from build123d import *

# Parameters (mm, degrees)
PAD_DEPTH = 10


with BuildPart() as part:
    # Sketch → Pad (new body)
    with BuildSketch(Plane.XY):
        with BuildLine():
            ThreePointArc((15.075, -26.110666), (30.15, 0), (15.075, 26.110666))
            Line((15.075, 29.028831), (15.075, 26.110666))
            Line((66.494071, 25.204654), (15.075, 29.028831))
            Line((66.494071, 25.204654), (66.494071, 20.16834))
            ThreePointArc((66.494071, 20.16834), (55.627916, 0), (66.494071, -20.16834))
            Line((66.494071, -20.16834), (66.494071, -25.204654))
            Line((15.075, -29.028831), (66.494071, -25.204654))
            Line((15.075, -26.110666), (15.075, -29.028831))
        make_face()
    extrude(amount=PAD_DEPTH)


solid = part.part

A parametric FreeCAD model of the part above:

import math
import FreeCAD as App
import Part
import Sketcher

V = App.Vector

doc = App.newDocument("Part")
params = doc.addObject("Spreadsheet::Sheet", "Params")
for row, (alias, value) in enumerate([
    ("sketch1_radius", "30.15 mm"),
    ("sketch1_radius2", "24.149999 mm"),
    ("pad1_length", "10 mm"),
], start=1):
    params.set(f"A{row}", alias)
    params.set(f"B{row}", "=" + value)
    params.setAlias(f"B{row}", alias)

body = doc.addObject("PartDesign::Body", "Body")

# Sketch on XY plane
sketch1 = body.newObject("Sketcher::SketchObject", "Sketch")
sketch1.AttachmentSupport = (doc.getObject("XY_Plane"), [""])
sketch1.MapMode = "FlatFace"
sketch1.addGeometry([
    Part.ArcOfCircle(Part.Circle(V(0, 0, 0), V(0, 0, 1), 30.2), math.radians(-60), math.radians(60)),  # 0
    Part.LineSegment(V(15.1, -26.1, 0), V(15.1, -29, 0)),  # 1
    Part.LineSegment(V(15.1, -29, 0), V(66.5, -25.2, 0)),  # 2
    Part.LineSegment(V(66.5, -25.2, 0), V(66.5, -20.2, 0)),  # 3
    Part.ArcOfCircle(Part.Circle(V(79.8, 0, 0), V(0, 0, 1), 24.1), math.radians(123), math.radians(237)),  # 4
    Part.LineSegment(V(66.5, 20.2, 0), V(66.5, 25.2, 0)),  # 5
    Part.LineSegment(V(66.5, 25.2, 0), V(15.1, 29, 0)),  # 6
    Part.LineSegment(V(15.1, 29, 0), V(15.1, 26.1, 0)),  # 7
], False)
sketch1.addConstraint([
    Sketcher.Constraint("Coincident", 0, 1, 1, 1),
    Sketcher.Constraint("Coincident", 1, 2, 2, 1),
    Sketcher.Constraint("Coincident", 2, 2, 3, 1),
    Sketcher.Constraint("Coincident", 3, 2, 4, 2),
    Sketcher.Constraint("Coincident", 4, 1, 5, 1),
    Sketcher.Constraint("Coincident", 5, 2, 6, 1),
    Sketcher.Constraint("Coincident", 6, 2, 7, 1),
    Sketcher.Constraint("Coincident", 7, 2, 0, 2),
    Sketcher.Constraint("Vertical", 1),
    Sketcher.Constraint("Vertical", 3),
    Sketcher.Constraint("Vertical", 5),
    Sketcher.Constraint("Vertical", 7),
    Sketcher.Constraint("Coincident", 0, 3, -1, 1),
    Sketcher.Constraint("Symmetric", 3, 2, 4, 1, -1),
    Sketcher.Constraint("Symmetric", 1, 2, 6, 2, -1),
    Sketcher.Constraint("Equal", 3, 5),
    Sketcher.Constraint("Radius", 0, 30.15),
    Sketcher.Constraint("Radius", 4, 24.149999),
    Sketcher.Constraint("DistanceX", -1, 1, 0, 1, 15.075),
    Sketcher.Constraint("DistanceY", 1, 2, 1, 1, 2.918165),
    Sketcher.Constraint("DistanceY", 3, 1, 3, 2, 5.036314),
    Sketcher.Constraint("DistanceX", -1, 1, 2, 2, 66.494071),
    Sketcher.Constraint("DistanceY", 3, 2, -1, 1, 20.16834),
])
sketch1.setExpression("Constraints[16]", "Params.sketch1_radius")
sketch1.setExpression("Constraints[17]", "Params.sketch1_radius2")
pad1 = body.newObject("PartDesign::Pad", "Pad")
pad1.Profile = sketch1
pad1.setExpression("Length", "Params.pad1_length")

doc.recompute()
